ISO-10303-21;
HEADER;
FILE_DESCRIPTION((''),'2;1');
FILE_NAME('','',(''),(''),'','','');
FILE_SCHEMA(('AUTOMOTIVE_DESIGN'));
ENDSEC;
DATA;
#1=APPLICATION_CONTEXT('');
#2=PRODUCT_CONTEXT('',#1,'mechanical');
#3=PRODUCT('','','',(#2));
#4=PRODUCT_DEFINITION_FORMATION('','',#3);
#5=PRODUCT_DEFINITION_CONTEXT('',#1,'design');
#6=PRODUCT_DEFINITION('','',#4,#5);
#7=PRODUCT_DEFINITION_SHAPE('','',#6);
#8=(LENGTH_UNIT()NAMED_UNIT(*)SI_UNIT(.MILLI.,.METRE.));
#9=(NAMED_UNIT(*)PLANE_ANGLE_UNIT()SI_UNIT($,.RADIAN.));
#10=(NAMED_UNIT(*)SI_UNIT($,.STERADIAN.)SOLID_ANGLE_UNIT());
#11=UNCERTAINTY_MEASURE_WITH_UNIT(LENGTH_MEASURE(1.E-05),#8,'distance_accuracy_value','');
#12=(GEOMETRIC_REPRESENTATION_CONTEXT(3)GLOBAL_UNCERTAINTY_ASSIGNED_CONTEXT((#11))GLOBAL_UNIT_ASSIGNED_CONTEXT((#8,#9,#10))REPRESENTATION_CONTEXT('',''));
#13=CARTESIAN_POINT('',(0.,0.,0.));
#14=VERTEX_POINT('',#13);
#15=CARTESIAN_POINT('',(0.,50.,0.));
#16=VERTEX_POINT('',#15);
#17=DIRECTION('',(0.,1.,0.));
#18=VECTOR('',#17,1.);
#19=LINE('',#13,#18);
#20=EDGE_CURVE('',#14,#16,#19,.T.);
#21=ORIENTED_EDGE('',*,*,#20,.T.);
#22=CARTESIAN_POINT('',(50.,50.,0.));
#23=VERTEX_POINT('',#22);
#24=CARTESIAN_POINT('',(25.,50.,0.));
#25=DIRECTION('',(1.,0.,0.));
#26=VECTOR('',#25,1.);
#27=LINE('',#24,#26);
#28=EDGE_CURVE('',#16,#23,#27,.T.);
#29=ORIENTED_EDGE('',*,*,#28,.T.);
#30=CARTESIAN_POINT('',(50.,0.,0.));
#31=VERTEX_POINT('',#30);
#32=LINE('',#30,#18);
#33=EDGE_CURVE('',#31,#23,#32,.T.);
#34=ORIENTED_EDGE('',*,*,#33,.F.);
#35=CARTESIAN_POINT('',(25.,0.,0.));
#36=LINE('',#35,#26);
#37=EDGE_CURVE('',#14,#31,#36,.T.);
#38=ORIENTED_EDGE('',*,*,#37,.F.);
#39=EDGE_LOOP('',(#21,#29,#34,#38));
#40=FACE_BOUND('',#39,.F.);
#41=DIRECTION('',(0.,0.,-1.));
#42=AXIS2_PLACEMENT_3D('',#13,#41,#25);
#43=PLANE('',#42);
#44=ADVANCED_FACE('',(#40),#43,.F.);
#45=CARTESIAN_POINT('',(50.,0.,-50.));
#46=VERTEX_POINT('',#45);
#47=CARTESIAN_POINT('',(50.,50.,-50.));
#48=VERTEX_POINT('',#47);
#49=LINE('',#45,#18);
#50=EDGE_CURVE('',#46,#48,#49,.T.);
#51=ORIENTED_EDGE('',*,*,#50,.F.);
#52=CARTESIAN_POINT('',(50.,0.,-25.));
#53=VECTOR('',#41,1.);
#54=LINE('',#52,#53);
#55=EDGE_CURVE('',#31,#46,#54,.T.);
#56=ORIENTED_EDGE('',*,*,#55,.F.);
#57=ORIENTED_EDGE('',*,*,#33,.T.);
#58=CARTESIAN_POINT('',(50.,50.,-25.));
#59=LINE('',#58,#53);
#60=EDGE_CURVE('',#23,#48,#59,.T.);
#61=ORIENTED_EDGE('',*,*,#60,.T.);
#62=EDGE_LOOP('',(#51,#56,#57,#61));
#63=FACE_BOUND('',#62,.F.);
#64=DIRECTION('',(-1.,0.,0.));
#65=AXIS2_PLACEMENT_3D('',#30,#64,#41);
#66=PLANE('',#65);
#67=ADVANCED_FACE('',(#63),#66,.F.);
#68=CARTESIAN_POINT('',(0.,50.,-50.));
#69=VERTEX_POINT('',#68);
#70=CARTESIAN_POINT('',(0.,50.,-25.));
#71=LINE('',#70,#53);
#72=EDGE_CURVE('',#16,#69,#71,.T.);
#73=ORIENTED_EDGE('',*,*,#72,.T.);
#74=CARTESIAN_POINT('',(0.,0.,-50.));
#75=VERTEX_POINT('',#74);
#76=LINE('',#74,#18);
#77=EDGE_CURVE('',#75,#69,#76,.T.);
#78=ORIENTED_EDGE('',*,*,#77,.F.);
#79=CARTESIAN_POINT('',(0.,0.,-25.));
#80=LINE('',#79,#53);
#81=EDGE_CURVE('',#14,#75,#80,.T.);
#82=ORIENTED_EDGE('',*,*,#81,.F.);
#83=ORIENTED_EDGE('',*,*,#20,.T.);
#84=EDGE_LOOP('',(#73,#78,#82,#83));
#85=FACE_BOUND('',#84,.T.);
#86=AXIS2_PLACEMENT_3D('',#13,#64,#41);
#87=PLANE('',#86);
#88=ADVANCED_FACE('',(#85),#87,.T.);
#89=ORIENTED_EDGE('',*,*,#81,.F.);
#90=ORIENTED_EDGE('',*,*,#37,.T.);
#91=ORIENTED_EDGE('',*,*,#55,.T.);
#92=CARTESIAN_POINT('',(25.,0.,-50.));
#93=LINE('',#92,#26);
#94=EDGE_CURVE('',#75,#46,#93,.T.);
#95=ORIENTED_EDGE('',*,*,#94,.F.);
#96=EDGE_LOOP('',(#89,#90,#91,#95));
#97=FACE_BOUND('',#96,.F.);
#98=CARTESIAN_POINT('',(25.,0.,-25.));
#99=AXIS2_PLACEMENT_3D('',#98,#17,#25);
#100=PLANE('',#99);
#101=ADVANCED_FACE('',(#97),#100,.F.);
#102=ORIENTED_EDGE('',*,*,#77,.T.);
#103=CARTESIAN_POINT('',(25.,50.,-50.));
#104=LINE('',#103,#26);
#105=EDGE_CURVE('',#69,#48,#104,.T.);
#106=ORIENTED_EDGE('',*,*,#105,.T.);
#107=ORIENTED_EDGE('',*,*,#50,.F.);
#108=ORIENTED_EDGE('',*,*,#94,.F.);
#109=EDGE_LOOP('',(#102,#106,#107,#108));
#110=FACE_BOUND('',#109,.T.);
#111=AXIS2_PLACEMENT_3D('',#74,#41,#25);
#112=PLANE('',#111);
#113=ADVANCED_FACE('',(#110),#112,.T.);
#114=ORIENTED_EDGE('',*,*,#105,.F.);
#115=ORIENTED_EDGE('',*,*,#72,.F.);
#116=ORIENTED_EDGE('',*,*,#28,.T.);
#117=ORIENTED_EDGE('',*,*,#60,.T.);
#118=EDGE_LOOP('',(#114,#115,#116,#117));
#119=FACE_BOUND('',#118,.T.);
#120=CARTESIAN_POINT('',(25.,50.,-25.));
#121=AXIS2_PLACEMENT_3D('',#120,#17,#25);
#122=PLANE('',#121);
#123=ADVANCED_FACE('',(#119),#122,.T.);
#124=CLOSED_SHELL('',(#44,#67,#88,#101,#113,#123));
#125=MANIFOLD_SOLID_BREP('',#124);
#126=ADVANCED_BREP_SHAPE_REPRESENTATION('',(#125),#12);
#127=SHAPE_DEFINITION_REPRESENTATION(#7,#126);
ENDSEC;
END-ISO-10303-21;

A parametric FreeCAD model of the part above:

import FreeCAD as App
import Part
import Sketcher
Q = App.Units.Quantity


def add_polygon(sketch, points):
    """Adds a closed chain of lines whose ends are joined by coincident constraints."""
    first, n = sketch.GeometryCount, len(points)
    for a, b in zip(points, points[1:] + points[:1]):
        sketch.addGeometry(Part.LineSegment(App.Vector(*a, 0), App.Vector(*b, 0)), False)
    for i in range(n):
        sketch.addConstraint(Sketcher.Constraint("Coincident", first + i, 2, first + (i + 1) % n, 1))

doc = App.newDocument("Part")
body = doc.addObject("PartDesign::Body", "Body")

# Sketch on XZ plane
sketch1 = doc.addObject("Sketcher::SketchObject", "Sketch")
body.addObject(sketch1)
sketch1.AttachmentSupport = (doc.XZ_Plane, [""])
sketch1.MapMode = "FlatFace"
add_polygon(sketch1, [(0, -50), (0, 0), (50, 0), (50, -50)])  # lines 0-3
sketch1.addConstraint([
    Sketcher.Constraint("Vertical", 0),
    Sketcher.Constraint("Horizontal", 1),
    Sketcher.Constraint("Vertical", 2),
    Sketcher.Constraint("Horizontal", 3),
    Sketcher.Constraint("Coincident", 0, 2, -1, 1),
    Sketcher.Constraint("Equal", 3, 0),
    Sketcher.Constraint("DistanceX", 1, 1, 1, 2, Q("50 mm")),
])
pad1 = doc.addObject("PartDesign::Pad", "Pad")
body.addObject(pad1)
pad1.Profile = sketch1
pad1.Length = 50
pad1.Reversed = True

doc.recompute()
